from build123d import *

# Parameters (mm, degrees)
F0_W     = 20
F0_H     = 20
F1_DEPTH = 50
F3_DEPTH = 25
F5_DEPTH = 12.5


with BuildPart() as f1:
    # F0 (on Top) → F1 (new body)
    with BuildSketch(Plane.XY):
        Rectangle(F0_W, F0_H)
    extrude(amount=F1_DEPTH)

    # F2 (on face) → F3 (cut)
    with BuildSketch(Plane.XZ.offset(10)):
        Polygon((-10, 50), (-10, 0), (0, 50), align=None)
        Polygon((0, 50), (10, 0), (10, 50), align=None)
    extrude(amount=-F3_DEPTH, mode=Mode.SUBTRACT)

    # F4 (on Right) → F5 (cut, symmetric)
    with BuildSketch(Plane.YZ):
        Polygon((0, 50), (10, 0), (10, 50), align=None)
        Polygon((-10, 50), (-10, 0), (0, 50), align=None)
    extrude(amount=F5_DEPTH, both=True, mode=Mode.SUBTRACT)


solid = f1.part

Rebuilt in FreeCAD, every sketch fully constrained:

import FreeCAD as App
import Part
import Sketcher
from FreeCAD import Vector

doc = App.newDocument("Part")
body = doc.addObject("PartDesign::Body", "Body")

# Sketch on XY plane
sketch1 = body.newObject("Sketcher::SketchObject", "Sketch")
sketch1.AttachmentSupport = (doc.getObject("XY_Plane"), [""])
sketch1.MapMode = "FlatFace"
sketch1.addGeometry([
    Part.LineSegment(Vector(-10, 10, 0), Vector(-10, -10, 0)),
    Part.LineSegment(Vector(-10, -10, 0), Vector(10, -10, 0)),
    Part.LineSegment(Vector(10, -10, 0), Vector(10, 10, 0)),
    Part.LineSegment(Vector(10, 10, 0), Vector(-10, 10, 0)),
], False)
sketch1.addConstraint([
    Sketcher.Constraint("Coincident", 0, 2, 1, 1),
    Sketcher.Constraint("Coincident", 1, 2, 2, 1),
    Sketcher.Constraint("Coincident", 2, 2, 3, 1),
    Sketcher.Constraint("Coincident", 3, 2, 0, 1),
    Sketcher.Constraint("Vertical", 0),
    Sketcher.Constraint("Horizontal", 1),
    Sketcher.Constraint("Vertical", 2),
    Sketcher.Constraint("Horizontal", 3),
    Sketcher.Constraint("Symmetric", 0, 2, 2, 2, -1, 1),
    Sketcher.Constraint("Equal", 3, 0),
    Sketcher.Constraint("DistanceX", 1, 1, 1, 2, 20.0),
])
pad1 = body.newObject("PartDesign::Pad", "Pad")
pad1.Profile = sketch1
pad1.Length = 50

# Sketch on XZ plane
sketch2 = body.newObject("Sketcher::SketchObject", "Sketch001")
sketch2.AttachmentSupport = (doc.getObject("XZ_Plane"), [""])
sketch2.MapMode = "FlatFace"
sketch2.AttachmentOffset = App.Placement(Vector(0, 0, 10), App.Rotation())
sketch2.addGeometry([
    Part.LineSegment(Vector(-10, 50, 0), Vector(-10, 0, 0)),  # 0
    Part.LineSegment(Vector(-10, 0, 0), Vector(0, 50, 0)),  # 1
    Part.LineSegment(Vector(0, 50, 0), Vector(-10, 50, 0)),  # 2
    Part.LineSegment(Vector(0, 50, 0), Vector(10, 0, 0)),  # 3
    Part.LineSegment(Vector(10, 0, 0), Vector(10, 50, 0)),  # 4
    Part.LineSegment(Vector(10, 50, 0), Vector(0, 50, 0)),  # 5
], False)
sketch2.addConstraint([
    Sketcher.Constraint("Coincident", 0, 2, 1, 1),
    Sketcher.Constraint("Coincident", 1, 2, 2, 1),
    Sketcher.Constraint("Coincident", 2, 2, 0, 1),
    Sketcher.Constraint("Coincident", 3, 2, 4, 1),
    Sketcher.Constraint("Coincident", 4, 2, 5, 1),
    Sketcher.Constraint("Coincident", 5, 2, 3, 1),
    Sketcher.Constraint("Vertical", 0),
    Sketcher.Constraint("Horizontal", 2),
    Sketcher.Constraint("Vertical", 4),
    Sketcher.Constraint("Horizontal", 5),
    Sketcher.Constraint("Coincident", 5, 2, 1, 2),
    Sketcher.Constraint("Symmetric", 0, 2, 3, 2, -1, 1),
    Sketcher.Constraint("PointOnObject", 0, 2, -1),
    Sketcher.Constraint("PointOnObject", 1, 2, -2),
    Sketcher.Constraint("DistanceX", 2, 2, 2, 1, 10.0),
    Sketcher.Constraint("DistanceY", 0, 2, 0, 1, 50.0),
])
pocket1 = body.newObject("PartDesign::Pocket", "Pocket")
pocket1.Profile = sketch2
pocket1.Length = 25

# Sketch on YZ plane
sketch3 = body.newObject("Sketcher::SketchObject", "Sketch002")
sketch3.AttachmentSupport = (doc.getObject("YZ_Plane"), [""])
sketch3.MapMode = "FlatFace"
sketch3.addGeometry([
    Part.LineSegment(Vector(0, 50, 0), Vector(10, 0, 0)),  # 0
    Part.LineSegment(Vector(10, 0, 0), Vector(10, 50, 0)),  # 1
    Part.LineSegment(Vector(10, 50, 0), Vector(0, 50, 0)),  # 2
    Part.LineSegment(Vector(-10, 50, 0), Vector(-10, 0, 0)),  # 3
    Part.LineSegment(Vector(-10, 0, 0), Vector(0, 50, 0)),  # 4
    Part.LineSegment(Vector(0, 50, 0), Vector(-10, 50, 0)),  # 5
], False)
sketch3.addConstraint([
    Sketcher.Constraint("Coincident", 0, 2, 1, 1),
    Sketcher.Constraint("Coincident", 1, 2, 2, 1),
    Sketcher.Constraint("Coincident", 2, 2, 0, 1),
    Sketcher.Constraint("Coincident", 3, 2, 4, 1),
    Sketcher.Constraint("Coincident", 4, 2, 5, 1),
    Sketcher.Constraint("Coincident", 5, 2, 3, 1),
    Sketcher.Constraint("Vertical", 1),
    Sketcher.Constraint("Horizontal", 2),
    Sketcher.Constraint("Vertical", 3),
    Sketcher.Constraint("Horizontal", 5),
    Sketcher.Constraint("Coincident", 4, 2, 2, 2),
    Sketcher.Constraint("Symmetric", 0, 2, 3, 2, -1, 1),
    Sketcher.Constraint("PointOnObject", 0, 2, -1),
    Sketcher.Constraint("PointOnObject", 2, 2, -2),
    Sketcher.Constraint("DistanceX", 2, 2, 2, 1, 10.0),
    Sketcher.Constraint("DistanceY", 1, 1, 1, 2, 50.0),
])
pocket2 = body.newObject("PartDesign::Pocket", "Pocket001")
pocket2.Profile = sketch3
pocket2.Length = 25
pocket2.Midplane = True

doc.recompute()
